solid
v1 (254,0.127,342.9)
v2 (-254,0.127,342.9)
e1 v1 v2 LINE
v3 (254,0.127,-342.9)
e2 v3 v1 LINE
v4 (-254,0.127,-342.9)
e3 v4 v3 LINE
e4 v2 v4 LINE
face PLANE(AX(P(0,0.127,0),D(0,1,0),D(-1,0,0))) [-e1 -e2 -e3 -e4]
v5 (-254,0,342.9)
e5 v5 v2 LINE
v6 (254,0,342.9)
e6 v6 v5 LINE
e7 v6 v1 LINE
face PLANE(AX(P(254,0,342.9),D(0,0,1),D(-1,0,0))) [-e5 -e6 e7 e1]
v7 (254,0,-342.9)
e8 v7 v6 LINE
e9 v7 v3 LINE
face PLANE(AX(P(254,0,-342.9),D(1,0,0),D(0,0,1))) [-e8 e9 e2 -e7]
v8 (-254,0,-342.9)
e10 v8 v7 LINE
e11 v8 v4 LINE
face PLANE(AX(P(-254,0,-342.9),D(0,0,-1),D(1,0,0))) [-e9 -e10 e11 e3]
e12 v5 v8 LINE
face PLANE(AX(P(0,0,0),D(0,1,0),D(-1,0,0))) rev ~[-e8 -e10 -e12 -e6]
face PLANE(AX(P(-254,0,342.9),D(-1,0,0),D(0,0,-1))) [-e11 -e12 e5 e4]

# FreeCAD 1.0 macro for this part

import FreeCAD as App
import Part
import Sketcher
Q = App.Units.Quantity


def add_polygon(sketch, points):
    """Adds a closed chain of lines whose ends are joined by coincident constraints."""
    first, n = sketch.GeometryCount, len(points)
    for a, b in zip(points, points[1:] + points[:1]):
        sketch.addGeometry(Part.LineSegment(App.Vector(*a, 0), App.Vector(*b, 0)), False)
    for i in range(n):
        sketch.addConstraint(Sketcher.Constraint("Coincident", first + i, 2, first + (i + 1) % n, 1))

doc = App.newDocument("Part")
body = doc.addObject("PartDesign::Body", "Body")

# Sketch on XZ plane
sketch1 = doc.addObject("Sketcher::SketchObject", "Sketch")
body.addObject(sketch1)
sketch1.AttachmentSupport = (doc.XZ_Plane, [""])
sketch1.MapMode = "FlatFace"
add_polygon(sketch1, [(254, -343), (-254, -343), (-254, 343), (254, 343)])  # lines 0-3
sketch1.addConstraint([
    Sketcher.Constraint("Horizontal", 0),
    Sketcher.Constraint("Vertical", 1),
    Sketcher.Constraint("Horizontal", 2),
    Sketcher.Constraint("Vertical", 3),
    Sketcher.Constraint("Symmetric", 0, 2, 2, 2, -1, 1),
    Sketcher.Constraint("DistanceX", 0, 2, 0, 1, Q("20 in")),
    Sketcher.Constraint("DistanceY", 1, 1, 1, 2, Q("27 in")),
])
pad1 = doc.addObject("PartDesign::Pad", "Pad")
body.addObject(pad1)
pad1.Profile = sketch1
pad1.Length = Q("0.005 in")
pad1.Reversed = True

doc.recompute()
